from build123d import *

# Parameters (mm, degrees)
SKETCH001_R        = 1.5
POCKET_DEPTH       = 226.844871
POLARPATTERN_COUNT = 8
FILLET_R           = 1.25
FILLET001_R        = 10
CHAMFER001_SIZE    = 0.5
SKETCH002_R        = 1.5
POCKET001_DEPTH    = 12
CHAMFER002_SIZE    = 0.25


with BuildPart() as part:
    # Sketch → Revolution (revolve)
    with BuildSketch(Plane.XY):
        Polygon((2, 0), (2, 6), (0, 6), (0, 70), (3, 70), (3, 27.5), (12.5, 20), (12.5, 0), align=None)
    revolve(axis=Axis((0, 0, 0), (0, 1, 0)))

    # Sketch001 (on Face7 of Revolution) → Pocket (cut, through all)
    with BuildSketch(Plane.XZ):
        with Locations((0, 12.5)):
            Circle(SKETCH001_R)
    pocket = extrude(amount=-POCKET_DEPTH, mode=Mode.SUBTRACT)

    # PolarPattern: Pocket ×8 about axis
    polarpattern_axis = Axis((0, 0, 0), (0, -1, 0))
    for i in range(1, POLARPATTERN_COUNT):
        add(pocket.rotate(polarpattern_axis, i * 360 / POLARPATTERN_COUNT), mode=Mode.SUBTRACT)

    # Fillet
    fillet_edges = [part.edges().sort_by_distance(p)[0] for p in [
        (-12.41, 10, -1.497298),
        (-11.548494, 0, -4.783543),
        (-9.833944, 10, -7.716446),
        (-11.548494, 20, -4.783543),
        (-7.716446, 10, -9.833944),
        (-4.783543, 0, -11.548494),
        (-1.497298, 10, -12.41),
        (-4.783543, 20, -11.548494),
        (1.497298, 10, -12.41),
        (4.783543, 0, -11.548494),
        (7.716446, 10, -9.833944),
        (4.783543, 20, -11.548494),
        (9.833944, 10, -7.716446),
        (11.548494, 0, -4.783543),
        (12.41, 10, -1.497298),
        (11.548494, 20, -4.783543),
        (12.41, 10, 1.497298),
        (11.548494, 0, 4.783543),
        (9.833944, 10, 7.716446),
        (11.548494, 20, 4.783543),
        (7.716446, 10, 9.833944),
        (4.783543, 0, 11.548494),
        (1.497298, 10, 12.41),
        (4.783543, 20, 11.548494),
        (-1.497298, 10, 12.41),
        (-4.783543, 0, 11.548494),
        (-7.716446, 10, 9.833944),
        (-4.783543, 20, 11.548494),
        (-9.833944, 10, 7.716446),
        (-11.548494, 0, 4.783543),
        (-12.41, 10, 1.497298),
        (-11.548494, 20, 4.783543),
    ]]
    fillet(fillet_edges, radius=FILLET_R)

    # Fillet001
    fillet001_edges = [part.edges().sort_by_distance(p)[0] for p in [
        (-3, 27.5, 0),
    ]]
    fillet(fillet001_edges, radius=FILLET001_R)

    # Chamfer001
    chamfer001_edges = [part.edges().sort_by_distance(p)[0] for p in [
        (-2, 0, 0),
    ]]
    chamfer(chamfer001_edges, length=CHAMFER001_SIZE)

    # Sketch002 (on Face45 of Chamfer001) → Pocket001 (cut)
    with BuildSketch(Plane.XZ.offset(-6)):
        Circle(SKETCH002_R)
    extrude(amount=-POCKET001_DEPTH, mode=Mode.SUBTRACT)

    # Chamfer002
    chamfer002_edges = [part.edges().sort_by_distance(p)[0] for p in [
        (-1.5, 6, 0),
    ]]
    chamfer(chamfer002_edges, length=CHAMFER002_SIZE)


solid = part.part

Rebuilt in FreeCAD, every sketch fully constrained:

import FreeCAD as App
import Part
import Sketcher


def edges_at(feature, points):
    """Names of the edges that pass closest to the given points."""
    edges = feature.Shape.Edges
    near = lambda p: min(range(len(edges)), key=lambda i: edges[i].distToShape(Part.Vertex(*p))[0])
    return sorted({f"Edge{near(p) + 1}" for p in points})

doc = App.newDocument("Part")
body = doc.addObject("PartDesign::Body", "Body")

# Sketch on XY plane
sketch1 = body.newObject("Sketcher::SketchObject", "Sketch")
sketch1.AttachmentSupport = (doc.getObject("XY_Plane"), [""])
sketch1.MapMode = "FlatFace"
sketch1.addGeometry(Part.LineSegment(App.Vector(2, 6, 0), App.Vector(2, 0, 0)), False)
sketch1.addGeometry(Part.LineSegment(App.Vector(2, 0, 0), App.Vector(12.5, 0, 0)), False)
sketch1.addGeometry(Part.LineSegment(App.Vector(12.5, 0, 0), App.Vector(12.5, 20, 0)), False)
sketch1.addGeometry(Part.LineSegment(App.Vector(12.5, 20, 0), App.Vector(3, 27.5, 0)), False)
sketch1.addGeometry(Part.LineSegment(App.Vector(3, 27.5, 0), App.Vector(3, 70, 0)), False)
sketch1.addGeometry(Part.LineSegment(App.Vector(3, 70, 0), App.Vector(0, 70, 0)), False)
sketch1.addGeometry(Part.LineSegment(App.Vector(0, 70, 0), App.Vector(0, 6, 0)), False)
sketch1.addGeometry(Part.LineSegment(App.Vector(0, 6, 0), App.Vector(2, 6, 0)), False)
sketch1.addConstraint(Sketcher.Constraint("Coincident", 0, 2, 1, 1))
sketch1.addConstraint(Sketcher.Constraint("Coincident", 1, 2, 2, 1))
sketch1.addConstraint(Sketcher.Constraint("Coincident", 2, 2, 3, 1))
sketch1.addConstraint(Sketcher.Constraint("Coincident", 3, 2, 4, 1))
sketch1.addConstraint(Sketcher.Constraint("Coincident", 4, 2, 5, 1))
sketch1.addConstraint(Sketcher.Constraint("Coincident", 5, 2, 6, 1))
sketch1.addConstraint(Sketcher.Constraint("Coincident", 6, 2, 7, 1))
sketch1.addConstraint(Sketcher.Constraint("Coincident", 7, 2, 0, 1))
sketch1.addConstraint(Sketcher.Constraint("Vertical", 0))
sketch1.addConstraint(Sketcher.Constraint("Horizontal", 1))
sketch1.addConstraint(Sketcher.Constraint("Vertical", 2))
sketch1.addConstraint(Sketcher.Constraint("Vertical", 4))
sketch1.addConstraint(Sketcher.Constraint("Horizontal", 5))
sketch1.addConstraint(Sketcher.Constraint("Vertical", 6))
sketch1.addConstraint(Sketcher.Constraint("Horizontal", 7))
sketch1.addConstraint(Sketcher.Constraint("PointOnObject", 0, 2, -1))
sketch1.addConstraint(Sketcher.Constraint("PointOnObject", 5, 2, -2))
sketch1.addConstraint(Sketcher.Constraint("DistanceX", 5, 2, 5, 1, 3.0))
sketch1.addConstraint(Sketcher.Constraint("DistanceX", 7, 1, 7, 2, 2.0))
sketch1.addConstraint(Sketcher.Constraint("DistanceY", 0, 2, 0, 1, 6.0))
sketch1.addConstraint(Sketcher.Constraint("DistanceY", 2, 1, 2, 2, 20.0))
sketch1.addConstraint(Sketcher.Constraint("DistanceY", 6, 2, 6, 1, 64.0))
sketch1.addConstraint(Sketcher.Constraint("DistanceX", 1, 1, 1, 2, 10.5))
sketch1.addConstraint(Sketcher.Constraint("DistanceY", 4, 1, 4, 2, 42.5))
revolution = body.newObject("PartDesign::Revolution", "Revolution")
revolution.Profile = sketch1
revolution.ReferenceAxis = (sketch1, ["V_Axis"])
revolution.Angle = 360

# Sketch on XZ plane
sketch2 = body.newObject("Sketcher::SketchObject", "Sketch001")
sketch2.AttachmentSupport = (doc.getObject("XZ_Plane"), [""])
sketch2.MapMode = "FlatFace"
sketch2.addGeometry(Part.Circle(App.Vector(0, 12.5, 0), App.Vector(0, 0, 1), 1.5), False)
sketch2.addConstraint(Sketcher.Constraint("PointOnObject", 0, 3, -2))
sketch2.addConstraint(Sketcher.Constraint("Diameter", 0, 3.0))
sketch2.addConstraint(Sketcher.Constraint("DistanceY", -1, 1, 0, 3, 12.5))
pocket1 = body.newObject("PartDesign::Pocket", "Pocket")
pocket1.Profile = sketch2
pocket1.Type = "ThroughAll"
doc.recompute()

polarpattern = body.newObject("PartDesign::PolarPattern", "PolarPattern")
polarpattern.Originals = [pocket1]
polarpattern.Axis = (doc.getObject("Y_Axis"), [""])
polarpattern.Angle = 360
polarpattern.Occurrences = 8
body.Tip = polarpattern
doc.recompute()

fillet = body.newObject("PartDesign::Fillet", "Fillet")
fillet.Base = (polarpattern, edges_at(polarpattern, [
    (-12.41, 10, -1.497),
    (-11.548, 0, -4.784),
    (-9.834, 10, -7.716),
    (-11.548, 20, -4.784),
    (-7.716, 10, -9.834),
    (-4.784, 0, -11.548),
    (-1.497, 10, -12.41),
    (-4.784, 20, -11.548),
    (1.497, 10, -12.41),
    (4.784, 0, -11.548),
    (7.716, 10, -9.834),
    (4.784, 20, -11.548),
    (9.834, 10, -7.716),
    (11.548, 0, -4.784),
    (12.41, 10, -1.497),
    (11.548, 20, -4.784),
    (12.41, 10, 1.497),
    (11.548, 0, 4.784),
    (9.834, 10, 7.716),
    (11.548, 20, 4.784),
    (7.716, 10, 9.834),
    (4.784, 0, 11.548),
    (1.497, 10, 12.41),
    (4.784, 20, 11.548),
    (-1.497, 10, 12.41),
    (-4.784, 0, 11.548),
    (-7.716, 10, 9.834),
    (-4.784, 20, 11.548),
    (-9.834, 10, 7.716),
    (-11.548, 0, 4.784),
    (-12.41, 10, 1.497),
    (-11.548, 20, 4.784),
]))
fillet.Radius = 1.25
doc.recompute()

fillet2 = body.newObject("PartDesign::Fillet", "Fillet001")
fillet2.Base = (fillet, edges_at(fillet, [(-3, 27.5, 0)]))
fillet2.Radius = 10
doc.recompute()

chamfer = body.newObject("PartDesign::Chamfer", "Chamfer")
chamfer.Base = (fillet2, edges_at(fillet2, [(-2, 0, 0)]))
chamfer.Size = 0.5

# Sketch on XZ plane
sketch3 = body.newObject("Sketcher::SketchObject", "Sketch002")
sketch3.AttachmentSupport = (doc.getObject("XZ_Plane"), [""])
sketch3.MapMode = "FlatFace"
sketch3.AttachmentOffset = App.Placement(App.Vector(0, 0, -6), App.Rotation())
sketch3.addGeometry(Part.Circle(App.Vector(0, 0, 0), App.Vector(0, 0, 1), 1.5), False)
sketch3.addConstraint(Sketcher.Constraint("Coincident", 0, 3, -1, 1))
sketch3.addConstraint(Sketcher.Constraint("Diameter", 0, 3.0))
pocket2 = body.newObject("PartDesign::Pocket", "Pocket001")
pocket2.Profile = sketch3
pocket2.Length = 12
doc.recompute()

chamfer2 = body.newObject("PartDesign::Chamfer", "Chamfer001")
chamfer2.Base = (pocket2, edges_at(pocket2, [(-1.5, 6, 0)]))
chamfer2.Size = 0.25

doc.recompute()
